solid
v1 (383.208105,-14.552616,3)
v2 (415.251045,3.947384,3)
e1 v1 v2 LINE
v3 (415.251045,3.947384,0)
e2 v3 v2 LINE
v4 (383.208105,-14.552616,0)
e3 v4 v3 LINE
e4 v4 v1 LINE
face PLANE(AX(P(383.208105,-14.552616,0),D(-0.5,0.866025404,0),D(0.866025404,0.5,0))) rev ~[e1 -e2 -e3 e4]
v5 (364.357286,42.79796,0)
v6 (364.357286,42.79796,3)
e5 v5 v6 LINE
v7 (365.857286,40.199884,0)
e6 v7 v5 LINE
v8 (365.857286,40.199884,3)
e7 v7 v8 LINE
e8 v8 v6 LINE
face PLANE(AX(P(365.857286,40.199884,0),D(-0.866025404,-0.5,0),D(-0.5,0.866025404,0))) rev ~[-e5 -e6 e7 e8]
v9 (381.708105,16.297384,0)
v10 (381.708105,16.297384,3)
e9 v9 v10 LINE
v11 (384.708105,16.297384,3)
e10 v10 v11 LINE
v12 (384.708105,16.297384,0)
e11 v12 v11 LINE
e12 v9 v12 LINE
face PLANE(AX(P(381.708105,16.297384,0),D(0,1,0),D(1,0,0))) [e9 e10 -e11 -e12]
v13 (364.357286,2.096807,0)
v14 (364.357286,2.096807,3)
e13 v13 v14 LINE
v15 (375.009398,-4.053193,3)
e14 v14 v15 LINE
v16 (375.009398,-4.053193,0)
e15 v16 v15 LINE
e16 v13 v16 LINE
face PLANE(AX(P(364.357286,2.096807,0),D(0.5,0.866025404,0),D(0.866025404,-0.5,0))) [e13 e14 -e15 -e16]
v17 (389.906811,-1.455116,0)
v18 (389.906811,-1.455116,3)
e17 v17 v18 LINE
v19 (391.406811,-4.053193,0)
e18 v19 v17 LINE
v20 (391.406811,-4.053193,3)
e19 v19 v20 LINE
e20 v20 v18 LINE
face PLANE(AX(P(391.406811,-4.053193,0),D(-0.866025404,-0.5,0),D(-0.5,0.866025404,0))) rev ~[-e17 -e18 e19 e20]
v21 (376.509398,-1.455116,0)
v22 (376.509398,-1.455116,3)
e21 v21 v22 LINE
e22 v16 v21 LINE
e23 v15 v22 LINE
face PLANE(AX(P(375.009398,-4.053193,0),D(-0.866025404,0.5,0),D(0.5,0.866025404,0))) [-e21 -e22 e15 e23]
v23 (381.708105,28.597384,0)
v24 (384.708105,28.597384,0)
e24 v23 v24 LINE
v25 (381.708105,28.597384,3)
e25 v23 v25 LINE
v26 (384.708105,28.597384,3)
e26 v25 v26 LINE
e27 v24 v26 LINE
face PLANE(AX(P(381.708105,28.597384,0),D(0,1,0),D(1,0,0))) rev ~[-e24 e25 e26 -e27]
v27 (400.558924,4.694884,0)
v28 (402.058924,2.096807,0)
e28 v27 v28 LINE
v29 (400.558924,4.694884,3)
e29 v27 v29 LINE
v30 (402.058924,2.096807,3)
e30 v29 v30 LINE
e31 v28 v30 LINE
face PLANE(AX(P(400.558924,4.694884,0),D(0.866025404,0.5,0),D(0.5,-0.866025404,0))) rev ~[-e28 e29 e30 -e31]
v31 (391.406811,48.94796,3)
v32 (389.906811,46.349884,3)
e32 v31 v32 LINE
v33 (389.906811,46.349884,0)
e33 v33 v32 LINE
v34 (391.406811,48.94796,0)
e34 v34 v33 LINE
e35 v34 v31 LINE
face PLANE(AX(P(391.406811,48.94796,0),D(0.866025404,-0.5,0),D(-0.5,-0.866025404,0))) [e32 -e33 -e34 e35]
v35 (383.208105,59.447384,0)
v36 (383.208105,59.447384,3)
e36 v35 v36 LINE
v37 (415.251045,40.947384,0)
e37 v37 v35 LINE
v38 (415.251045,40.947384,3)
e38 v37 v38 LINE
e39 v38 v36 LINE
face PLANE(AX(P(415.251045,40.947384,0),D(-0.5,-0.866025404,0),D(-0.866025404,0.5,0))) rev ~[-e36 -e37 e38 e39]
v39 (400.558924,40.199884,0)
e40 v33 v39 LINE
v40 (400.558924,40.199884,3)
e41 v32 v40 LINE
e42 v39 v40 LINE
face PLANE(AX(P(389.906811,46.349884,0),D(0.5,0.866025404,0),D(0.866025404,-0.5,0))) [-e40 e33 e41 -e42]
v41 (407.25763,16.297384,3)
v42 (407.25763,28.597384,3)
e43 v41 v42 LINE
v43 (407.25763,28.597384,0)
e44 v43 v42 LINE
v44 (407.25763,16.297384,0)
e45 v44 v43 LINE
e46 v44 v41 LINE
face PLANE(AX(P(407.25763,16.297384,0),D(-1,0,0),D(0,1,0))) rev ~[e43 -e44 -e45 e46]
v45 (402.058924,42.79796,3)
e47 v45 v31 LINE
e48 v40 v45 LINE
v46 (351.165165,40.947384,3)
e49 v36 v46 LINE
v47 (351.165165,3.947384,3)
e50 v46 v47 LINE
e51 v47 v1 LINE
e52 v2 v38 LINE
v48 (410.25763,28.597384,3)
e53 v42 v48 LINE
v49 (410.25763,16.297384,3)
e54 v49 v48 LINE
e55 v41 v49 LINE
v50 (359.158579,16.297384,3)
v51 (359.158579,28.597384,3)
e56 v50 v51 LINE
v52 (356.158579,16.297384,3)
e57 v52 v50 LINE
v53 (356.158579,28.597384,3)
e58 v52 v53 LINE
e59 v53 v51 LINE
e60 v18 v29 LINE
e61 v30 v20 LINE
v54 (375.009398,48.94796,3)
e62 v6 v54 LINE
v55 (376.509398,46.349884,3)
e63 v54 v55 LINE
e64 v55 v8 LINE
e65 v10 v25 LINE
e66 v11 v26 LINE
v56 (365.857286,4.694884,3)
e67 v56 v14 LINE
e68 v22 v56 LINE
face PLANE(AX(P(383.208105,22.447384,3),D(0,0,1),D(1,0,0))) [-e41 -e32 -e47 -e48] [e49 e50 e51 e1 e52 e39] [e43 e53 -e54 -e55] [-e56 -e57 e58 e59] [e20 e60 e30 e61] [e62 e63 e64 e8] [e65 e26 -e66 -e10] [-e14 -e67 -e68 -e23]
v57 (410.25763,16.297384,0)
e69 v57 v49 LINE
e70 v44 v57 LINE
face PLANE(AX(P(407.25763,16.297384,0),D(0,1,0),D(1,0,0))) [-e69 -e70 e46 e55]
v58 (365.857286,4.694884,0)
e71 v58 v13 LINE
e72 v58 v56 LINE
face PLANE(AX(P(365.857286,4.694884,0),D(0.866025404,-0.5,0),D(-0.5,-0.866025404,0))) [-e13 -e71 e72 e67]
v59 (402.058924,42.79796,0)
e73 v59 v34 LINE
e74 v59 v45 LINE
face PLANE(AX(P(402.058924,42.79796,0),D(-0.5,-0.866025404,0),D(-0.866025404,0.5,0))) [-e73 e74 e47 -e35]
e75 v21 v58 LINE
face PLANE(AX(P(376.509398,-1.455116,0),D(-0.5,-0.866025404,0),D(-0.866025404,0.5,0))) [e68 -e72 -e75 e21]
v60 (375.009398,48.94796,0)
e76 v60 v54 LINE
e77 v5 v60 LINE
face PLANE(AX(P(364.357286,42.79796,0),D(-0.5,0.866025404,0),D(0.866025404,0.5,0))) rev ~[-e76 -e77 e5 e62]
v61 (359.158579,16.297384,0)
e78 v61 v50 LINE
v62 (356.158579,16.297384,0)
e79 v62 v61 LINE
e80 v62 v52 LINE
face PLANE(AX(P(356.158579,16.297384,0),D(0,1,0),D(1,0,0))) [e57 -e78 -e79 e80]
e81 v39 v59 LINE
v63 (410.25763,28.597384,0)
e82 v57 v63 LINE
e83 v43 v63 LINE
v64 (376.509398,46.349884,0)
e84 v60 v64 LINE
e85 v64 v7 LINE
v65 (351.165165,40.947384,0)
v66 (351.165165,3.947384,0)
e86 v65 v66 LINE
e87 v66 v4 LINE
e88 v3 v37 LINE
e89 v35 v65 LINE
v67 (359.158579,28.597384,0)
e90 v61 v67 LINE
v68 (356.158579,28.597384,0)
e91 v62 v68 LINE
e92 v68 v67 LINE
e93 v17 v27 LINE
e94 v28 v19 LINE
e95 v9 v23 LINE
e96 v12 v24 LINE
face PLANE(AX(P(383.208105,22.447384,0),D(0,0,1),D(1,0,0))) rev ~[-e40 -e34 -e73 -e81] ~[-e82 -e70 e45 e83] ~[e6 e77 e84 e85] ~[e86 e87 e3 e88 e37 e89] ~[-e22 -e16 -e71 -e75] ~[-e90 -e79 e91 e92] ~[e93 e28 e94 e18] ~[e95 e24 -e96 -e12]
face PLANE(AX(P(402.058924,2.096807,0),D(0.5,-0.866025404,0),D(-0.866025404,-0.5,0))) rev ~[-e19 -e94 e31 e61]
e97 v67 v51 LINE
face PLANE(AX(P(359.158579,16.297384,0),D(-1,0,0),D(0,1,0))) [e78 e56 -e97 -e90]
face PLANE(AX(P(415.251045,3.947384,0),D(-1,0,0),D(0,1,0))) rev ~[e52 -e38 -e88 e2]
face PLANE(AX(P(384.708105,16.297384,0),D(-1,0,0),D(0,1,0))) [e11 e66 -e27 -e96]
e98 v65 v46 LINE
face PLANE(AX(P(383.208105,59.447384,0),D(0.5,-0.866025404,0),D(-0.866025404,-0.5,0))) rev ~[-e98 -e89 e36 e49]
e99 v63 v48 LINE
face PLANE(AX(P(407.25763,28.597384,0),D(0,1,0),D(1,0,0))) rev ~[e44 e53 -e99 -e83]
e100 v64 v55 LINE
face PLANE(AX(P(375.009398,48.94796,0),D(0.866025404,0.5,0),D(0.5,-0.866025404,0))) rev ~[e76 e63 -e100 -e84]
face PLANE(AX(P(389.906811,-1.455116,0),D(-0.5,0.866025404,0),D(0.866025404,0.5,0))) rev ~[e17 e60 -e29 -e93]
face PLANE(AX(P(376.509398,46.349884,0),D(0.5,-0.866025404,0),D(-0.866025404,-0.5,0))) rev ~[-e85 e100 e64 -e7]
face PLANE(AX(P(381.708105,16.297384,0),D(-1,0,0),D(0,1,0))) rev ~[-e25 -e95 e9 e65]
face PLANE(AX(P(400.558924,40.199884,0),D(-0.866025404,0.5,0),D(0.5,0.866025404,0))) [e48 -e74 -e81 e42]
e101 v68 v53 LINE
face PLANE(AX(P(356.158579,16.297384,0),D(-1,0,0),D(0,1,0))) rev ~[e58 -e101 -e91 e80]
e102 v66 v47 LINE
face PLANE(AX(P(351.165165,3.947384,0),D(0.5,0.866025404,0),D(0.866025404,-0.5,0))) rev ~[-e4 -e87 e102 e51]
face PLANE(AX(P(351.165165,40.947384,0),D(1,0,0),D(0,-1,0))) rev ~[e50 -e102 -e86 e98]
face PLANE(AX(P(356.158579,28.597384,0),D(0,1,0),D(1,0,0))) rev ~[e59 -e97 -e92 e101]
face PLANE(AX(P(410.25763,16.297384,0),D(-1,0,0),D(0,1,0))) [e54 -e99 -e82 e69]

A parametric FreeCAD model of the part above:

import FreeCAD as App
import Part
import Sketcher
Q = App.Units.Quantity


def add_polygon(sketch, points):
    """Adds a closed chain of lines whose ends are joined by coincident constraints."""
    first, n = sketch.GeometryCount, len(points)
    for a, b in zip(points, points[1:] + points[:1]):
        sketch.addGeometry(Part.LineSegment(App.Vector(*a, 0), App.Vector(*b, 0)), False)
    for i in range(n):
        sketch.addConstraint(Sketcher.Constraint("Coincident", first + i, 2, first + (i + 1) % n, 1))

doc = App.newDocument("Part")
body = doc.addObject("PartDesign::Body", "Body")

sketch1 = body.newObject("Sketcher::SketchObject", "Sketch")
sketch1.AttachmentSupport = (doc.getObject("XY_Plane"), [""])
sketch1.MapMode = "FlatFace"
add_polygon(sketch1, [(383.2, -14.6), (415.3, 3.9), (415.3, 40.9), (383.2, 59.4), (351.2, 40.9), (351.2, 3.9)])
add_polygon(sketch1, [(365.9, 4.7), (376.5, -1.5), (375, -4.1), (364.4, 2.1)])
add_polygon(sketch1, [(359.2, 16.3), (356.2, 16.3), (356.2, 28.6), (359.2, 28.6)])
add_polygon(sketch1, [(384.7, 16.3), (381.7, 16.3), (381.7, 28.6), (384.7, 28.6)])
add_polygon(sketch1, [(389.9, -1.5), (400.6, 4.7), (402.1, 2.1), (391.4, -4.1)])
add_polygon(sketch1, [(410.3, 16.3), (407.3, 16.3), (407.3, 28.6), (410.3, 28.6)])
add_polygon(sketch1, [(376.5, 46.3), (365.9, 40.2), (364.4, 42.8), (375, 48.9)])
add_polygon(sketch1, [(400.6, 40.2), (389.9, 46.3), (391.4, 48.9), (402.1, 42.8)])
sketch1.addConstraint(Sketcher.Constraint("Vertical", 1))
sketch1.addConstraint(Sketcher.Constraint("Vertical", 4))
sketch1.addConstraint(Sketcher.Constraint("Horizontal", 10))
sketch1.addConstraint(Sketcher.Constraint("Vertical", 11))
sketch1.addConstraint(Sketcher.Constraint("Horizontal", 12))
sketch1.addConstraint(Sketcher.Constraint("Vertical", 13))
sketch1.addConstraint(Sketcher.Constraint("Horizontal", 14))
sketch1.addConstraint(Sketcher.Constraint("Vertical", 15))
sketch1.addConstraint(Sketcher.Constraint("Horizontal", 16))
sketch1.addConstraint(Sketcher.Constraint("Vertical", 17))
sketch1.addConstraint(Sketcher.Constraint("Horizontal", 22))
sketch1.addConstraint(Sketcher.Constraint("Vertical", 23))
sketch1.addConstraint(Sketcher.Constraint("Horizontal", 24))
sketch1.addConstraint(Sketcher.Constraint("Vertical", 25))
sketch1.addConstraint(Sketcher.Constraint("Parallel", 0, 3))
sketch1.addConstraint(Sketcher.Constraint("Parallel", 2, 5))
sketch1.addConstraint(Sketcher.Constraint("Parallel", 5, 6))
sketch1.addConstraint(Sketcher.Constraint("Perpendicular", 6, 7))
sketch1.addConstraint(Sketcher.Constraint("Perpendicular", 7, 8))
sketch1.addConstraint(Sketcher.Constraint("Perpendicular", 8, 9))
sketch1.addConstraint(Sketcher.Constraint("Parallel", 3, 18))
sketch1.addConstraint(Sketcher.Constraint("Perpendicular", 18, 19))
sketch1.addConstraint(Sketcher.Constraint("Perpendicular", 19, 20))
sketch1.addConstraint(Sketcher.Constraint("Perpendicular", 20, 21))
sketch1.addConstraint(Sketcher.Constraint("Perpendicular", 21, 26))
sketch1.addConstraint(Sketcher.Constraint("Perpendicular", 26, 27))
sketch1.addConstraint(Sketcher.Constraint("Perpendicular", 27, 28))
sketch1.addConstraint(Sketcher.Constraint("Perpendicular", 28, 29))
sketch1.addConstraint(Sketcher.Constraint("Perpendicular", 9, 30))
sketch1.addConstraint(Sketcher.Constraint("Perpendicular", 30, 31))
sketch1.addConstraint(Sketcher.Constraint("Perpendicular", 31, 32))
sketch1.addConstraint(Sketcher.Constraint("Perpendicular", 32, 33))
sketch1.addConstraint(Sketcher.Constraint("Horizontal", 1, 2, 3, 2))
sketch1.addConstraint(Sketcher.Constraint("Horizontal", 0, 2, 4, 2))
sketch1.addConstraint(Sketcher.Constraint("Horizontal", 13, 2, 14, 2))
sketch1.addConstraint(Sketcher.Constraint("Horizontal", 12, 2, 15, 2))
sketch1.addConstraint(Sketcher.Constraint("Horizontal", 9, 2, 18, 2))
sketch1.addConstraint(Sketcher.Constraint("Horizontal", 8, 2, 19, 2))
sketch1.addConstraint(Sketcher.Constraint("Horizontal", 7, 2, 20, 2))
sketch1.addConstraint(Sketcher.Constraint("Horizontal", 17, 2, 22, 2))
sketch1.addConstraint(Sketcher.Constraint("Horizontal", 16, 2, 23, 2))
sketch1.addConstraint(Sketcher.Constraint("Horizontal", 29, 2, 30, 2))
sketch1.addConstraint(Sketcher.Constraint("Horizontal", 28, 2, 31, 2))
sketch1.addConstraint(Sketcher.Constraint("Horizontal", 27, 2, 32, 2))
sketch1.addConstraint(Sketcher.Constraint("Vertical", 2, 2, 5, 2))
sketch1.addConstraint(Sketcher.Constraint("Vertical", 9, 2, 26, 2))
sketch1.addConstraint(Sketcher.Constraint("Vertical", 8, 2, 27, 2))
sketch1.addConstraint(Sketcher.Constraint("Vertical", 7, 2, 28, 2))
sketch1.addConstraint(Sketcher.Constraint("Vertical", 21, 2, 30, 2))
sketch1.addConstraint(Sketcher.Constraint("Equal", 12, 14))
sketch1.addConstraint(Sketcher.Constraint("Equal", 16, 22))
sketch1.addConstraint(Sketcher.Constraint("DistanceX", 10, 2, 10, 1, 3.0))
sketch1.addConstraint(Sketcher.Constraint("DistanceY", 1, 1, 1, 2, 37.0))
sketch1.addConstraint(Sketcher.Constraint("Angle", 0, Q("30 deg")))
sketch1.addConstraint(Sketcher.Constraint("Distance", 0, 37.0))
sketch1.addConstraint(Sketcher.Constraint("Distance", 7, 3.0))
sketch1.addConstraint(Sketcher.Constraint("DistanceY", 11, 1, 11, 2, 12.3))
sketch1.addConstraint(Sketcher.Constraint("Distance", 6, 12.3))
sketch1.addConstraint(Sketcher.Constraint("DistanceY", 4, 2, 10, 2, 12.35))
sketch1.addConstraint(Sketcher.Constraint("DistanceX", -1, 1, 6, 2, 376.509398))
sketch1.addConstraint(Sketcher.Constraint("DistanceY", 5, 2, 6, 2, 13.0975))
sketch1.addConstraint(Sketcher.Constraint("DistanceY", 12, 2, 26, 2, 11.6025))
sketch1.addConstraint(Sketcher.Constraint("DistanceX", -1, 1, 10, 2, 356.158579))
sketch1.addConstraint(Sketcher.Constraint("DistanceX", -1, 1, 20, 2, 391.406811))
sketch1.addConstraint(Sketcher.Constraint("DistanceX", -1, 1, 22, 2, 407.25763))
sketch1.addConstraint(Sketcher.Constraint("DistanceY", -1, 1, 27, 2, 42.79796))
sketch1.addConstraint(Sketcher.Constraint("DistanceX", 4, 2, 8, 2, 13.192121))
sketch1.addConstraint(Sketcher.Constraint("DistanceX", 9, 2, 14, 2, 15.850819))
pad1 = body.newObject("PartDesign::Pad", "Pad")
pad1.Profile = sketch1
pad1.Length = 3

doc.recompute()
